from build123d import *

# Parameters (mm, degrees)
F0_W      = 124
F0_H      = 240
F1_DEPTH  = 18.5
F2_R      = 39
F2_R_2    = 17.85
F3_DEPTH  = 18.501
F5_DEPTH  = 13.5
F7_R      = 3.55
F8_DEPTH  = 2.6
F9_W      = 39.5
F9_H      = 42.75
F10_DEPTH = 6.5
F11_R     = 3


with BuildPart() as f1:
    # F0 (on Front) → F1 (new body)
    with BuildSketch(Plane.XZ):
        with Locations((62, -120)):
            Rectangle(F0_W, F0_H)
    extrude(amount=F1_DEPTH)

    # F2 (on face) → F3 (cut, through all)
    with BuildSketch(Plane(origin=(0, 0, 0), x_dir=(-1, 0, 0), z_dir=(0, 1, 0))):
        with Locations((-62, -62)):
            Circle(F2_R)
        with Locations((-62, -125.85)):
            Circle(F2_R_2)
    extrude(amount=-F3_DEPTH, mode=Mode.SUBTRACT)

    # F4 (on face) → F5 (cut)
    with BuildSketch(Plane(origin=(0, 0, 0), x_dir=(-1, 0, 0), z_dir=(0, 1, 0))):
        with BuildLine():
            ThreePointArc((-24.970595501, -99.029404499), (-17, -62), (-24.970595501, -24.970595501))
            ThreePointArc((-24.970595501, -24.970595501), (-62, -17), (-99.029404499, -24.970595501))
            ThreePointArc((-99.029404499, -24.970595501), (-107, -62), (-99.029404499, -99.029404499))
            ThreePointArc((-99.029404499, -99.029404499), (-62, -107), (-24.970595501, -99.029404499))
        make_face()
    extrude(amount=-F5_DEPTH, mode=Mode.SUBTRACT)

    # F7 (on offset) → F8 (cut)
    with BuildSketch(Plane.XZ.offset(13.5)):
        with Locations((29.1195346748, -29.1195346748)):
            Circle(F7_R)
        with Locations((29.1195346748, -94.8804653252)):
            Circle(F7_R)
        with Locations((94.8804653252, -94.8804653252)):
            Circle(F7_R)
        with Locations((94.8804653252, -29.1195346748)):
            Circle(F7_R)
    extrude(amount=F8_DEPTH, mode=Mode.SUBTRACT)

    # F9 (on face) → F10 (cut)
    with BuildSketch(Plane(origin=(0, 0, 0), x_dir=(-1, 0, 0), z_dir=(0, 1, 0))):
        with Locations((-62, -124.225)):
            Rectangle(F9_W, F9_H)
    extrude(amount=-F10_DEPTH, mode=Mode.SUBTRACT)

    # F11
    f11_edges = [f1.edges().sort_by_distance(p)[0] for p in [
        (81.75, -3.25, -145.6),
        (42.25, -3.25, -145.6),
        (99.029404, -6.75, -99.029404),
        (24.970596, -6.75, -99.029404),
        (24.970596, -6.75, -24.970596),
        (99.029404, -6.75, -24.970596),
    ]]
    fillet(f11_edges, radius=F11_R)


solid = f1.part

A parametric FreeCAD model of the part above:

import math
import FreeCAD as App
import Part
import Sketcher
Q = App.Units.Quantity


def edges_at(feature, points):
    """Names of the edges that pass closest to the given points."""
    edges = feature.Shape.Edges
    near = lambda p: min(range(len(edges)), key=lambda i: edges[i].distToShape(Part.Vertex(*p))[0])
    return sorted({f"Edge{near(p) + 1}" for p in points})


def add_polygon(sketch, points):
    """Adds a closed chain of lines whose ends are joined by coincident constraints."""
    first, n = sketch.GeometryCount, len(points)
    for a, b in zip(points, points[1:] + points[:1]):
        sketch.addGeometry(Part.LineSegment(App.Vector(*a, 0), App.Vector(*b, 0)), False)
    for i in range(n):
        sketch.addConstraint(Sketcher.Constraint("Coincident", first + i, 2, first + (i + 1) % n, 1))

doc = App.newDocument("Part")
body = doc.addObject("PartDesign::Body", "Body")

# Sketch on XZ plane
sketch1 = body.newObject("Sketcher::SketchObject", "Sketch")
sketch1.AttachmentSupport = (doc.getObject("XZ_Plane"), [""])
sketch1.MapMode = "FlatFace"
add_polygon(sketch1, [(0, 0), (0, -240), (124, -240), (124, 0)])  # lines 0-3
sketch1.addConstraint(Sketcher.Constraint("Vertical", 0))
sketch1.addConstraint(Sketcher.Constraint("Horizontal", 1))
sketch1.addConstraint(Sketcher.Constraint("Vertical", 2))
sketch1.addConstraint(Sketcher.Constraint("Horizontal", 3))
sketch1.addConstraint(Sketcher.Constraint("Coincident", 3, 2, -1, 1))
sketch1.addConstraint(Sketcher.Constraint("DistanceX", 1, 1, 1, 2, Q("124 mm")))
sketch1.addConstraint(Sketcher.Constraint("DistanceY", 0, 2, 0, 1, Q("240 mm")))
pad1 = body.newObject("PartDesign::Pad", "Pad")
pad1.Profile = sketch1
pad1.Length = 18.5

# Sketch on XZ plane
sketch2 = body.newObject("Sketcher::SketchObject", "Sketch001")
sketch2.AttachmentSupport = (doc.getObject("XZ_Plane"), [""])
sketch2.MapMode = "FlatFace"
sketch2.addGeometry(Part.Circle(App.Vector(62, -62, 0), App.Vector(0, 0, 1), 39), False)
sketch2.addGeometry(Part.Circle(App.Vector(62, -125.85, 0), App.Vector(0, 0, 1), 17.85), False)
sketch2.addConstraint(Sketcher.Constraint("Vertical", 0, 3, 1, 3))
sketch2.addConstraint(Sketcher.Constraint("Diameter", 0, Q("78 mm")))
sketch2.addConstraint(Sketcher.Constraint("Diameter", 1, Q("35.7 mm")))
sketch2.addConstraint(Sketcher.Constraint("DistanceX", -1, 1, 0, 3, Q("62 mm")))
sketch2.addConstraint(Sketcher.Constraint("DistanceY", 0, 3, -1, 1, Q("62 mm")))
sketch2.addConstraint(Sketcher.Constraint("DistanceY", 1, 3, -1, 1, Q("125.85 mm")))
pocket1 = body.newObject("PartDesign::Pocket", "Pocket")
pocket1.Profile = sketch2
pocket1.Type = "ThroughAll"
pocket1.Reversed = True

# Sketch on XZ plane
sketch3 = body.newObject("Sketcher::SketchObject", "Sketch002")
sketch3.AttachmentSupport = (doc.getObject("XZ_Plane"), [""])
sketch3.MapMode = "FlatFace"
sketch3.addGeometry(Part.ArcOfCircle(Part.Circle(App.Vector(107, -62, 0), App.Vector(0, 0, 1), 90), math.radians(155.704811), math.radians(204.295189)), False)
sketch3.addGeometry(Part.ArcOfCircle(Part.Circle(App.Vector(62, -107, 0), App.Vector(0, 0, 1), 90), math.radians(65.704811), math.radians(114.295189)), False)
sketch3.addGeometry(Part.ArcOfCircle(Part.Circle(App.Vector(17, -62, 0), App.Vector(0, 0, 1), 90), math.radians(-24.295189), math.radians(24.295189)), False)
sketch3.addGeometry(Part.ArcOfCircle(Part.Circle(App.Vector(62, -17, 0), App.Vector(0, 0, 1), 90), math.radians(-114.295189), math.radians(-65.704811)), False)
sketch3.addConstraint(Sketcher.Constraint("Coincident", 0, 1, 1, 2))
sketch3.addConstraint(Sketcher.Constraint("Coincident", 1, 1, 2, 2))
sketch3.addConstraint(Sketcher.Constraint("Coincident", 2, 1, 3, 2))
sketch3.addConstraint(Sketcher.Constraint("Coincident", 3, 1, 0, 2))
sketch3.addConstraint(Sketcher.Constraint("Equal", 0, 1))
sketch3.addConstraint(Sketcher.Constraint("Equal", 1, 2))
sketch3.addConstraint(Sketcher.Constraint("Equal", 2, 3))
sketch3.addConstraint(Sketcher.Constraint("Horizontal", 0, 3, 2, 3))
sketch3.addConstraint(Sketcher.Constraint("Horizontal", 0, 1, 1, 1))
sketch3.addConstraint(Sketcher.Constraint("Horizontal", 2, 1, 3, 1))
sketch3.addConstraint(Sketcher.Constraint("Vertical", 1, 1, 2, 1))
sketch3.addConstraint(Sketcher.Constraint("Radius", 0, Q("90 mm")))
sketch3.addConstraint(Sketcher.Constraint("DistanceX", -1, 1, 0, 3, Q("107 mm")))
sketch3.addConstraint(Sketcher.Constraint("DistanceY", 0, 3, -1, 1, Q("62 mm")))
sketch3.addConstraint(Sketcher.Constraint("DistanceX", -1, 1, 1, 3, Q("62 mm")))
sketch3.addConstraint(Sketcher.Constraint("DistanceY", 1, 3, -1, 1, Q("107 mm")))
pocket2 = body.newObject("PartDesign::Pocket", "Pocket001")
pocket2.Profile = sketch3
pocket2.Length = 13.5
pocket2.Reversed = True

# Sketch on XZ plane
sketch4 = body.newObject("Sketcher::SketchObject", "Sketch003")
sketch4.AttachmentSupport = (doc.getObject("XZ_Plane"), [""])
sketch4.MapMode = "FlatFace"
sketch4.AttachmentOffset = App.Placement(App.Vector(0, 0, 13.5), App.Rotation())
sketch4.addGeometry(Part.Circle(App.Vector(29.119535, -29.119535, 0), App.Vector(0, 0, 1), 3.55), False)
sketch4.addGeometry(Part.Circle(App.Vector(29.119535, -94.880465, 0), App.Vector(0, 0, 1), 3.55), False)
sketch4.addGeometry(Part.Circle(App.Vector(94.880465, -94.880465, 0), App.Vector(0, 0, 1), 3.55), False)
sketch4.addGeometry(Part.Circle(App.Vector(94.880465, -29.119535, 0), App.Vector(0, 0, 1), 3.55), False)
sketch4.addConstraint(Sketcher.Constraint("Equal", 0, 1))
sketch4.addConstraint(Sketcher.Constraint("Equal", 1, 2))
sketch4.addConstraint(Sketcher.Constraint("Equal", 2, 3))
sketch4.addConstraint(Sketcher.Constraint("Horizontal", 1, 3, 2, 3))
sketch4.addConstraint(Sketcher.Constraint("Horizontal", 0, 3, 3, 3))
sketch4.addConstraint(Sketcher.Constraint("Vertical", 0, 3, 1, 3))
sketch4.addConstraint(Sketcher.Constraint("Vertical", 2, 3, 3, 3))
sketch4.addConstraint(Sketcher.Constraint("Diameter", 0, Q("7.1 mm")))
sketch4.addConstraint(Sketcher.Constraint("DistanceY", 1, 3, 0, 3, Q("65.760931 mm")))
sketch4.addConstraint(Sketcher.Constraint("DistanceX", 1, 3, 2, 3, Q("65.760931 mm")))
sketch4.addConstraint(Sketcher.Constraint("DistanceX", -1, 1, 0, 3, Q("29.119535 mm")))
sketch4.addConstraint(Sketcher.Constraint("DistanceY", 0, 3, -1, 1, Q("29.119535 mm")))
pocket3 = body.newObject("PartDesign::Pocket", "Pocket002")
pocket3.Profile = sketch4
pocket3.Length = 2.6
pocket3.Reversed = True

# Sketch on XZ plane
sketch5 = body.newObject("Sketcher::SketchObject", "Sketch004")
sketch5.AttachmentSupport = (doc.getObject("XZ_Plane"), [""])
sketch5.MapMode = "FlatFace"
add_polygon(sketch5, [(81.75, -102.85), (81.75, -145.6), (42.25, -145.6), (42.25, -102.85)])  # lines 0-3
sketch5.addConstraint(Sketcher.Constraint("Vertical", 0))
sketch5.addConstraint(Sketcher.Constraint("Horizontal", 1))
sketch5.addConstraint(Sketcher.Constraint("Vertical", 2))
sketch5.addConstraint(Sketcher.Constraint("Horizontal", 3))
sketch5.addConstraint(Sketcher.Constraint("DistanceX", 1, 2, 1, 1, Q("39.5 mm")))
sketch5.addConstraint(Sketcher.Constraint("DistanceY", 0, 2, 0, 1, Q("42.75 mm")))
sketch5.addConstraint(Sketcher.Constraint("DistanceY", 0, 2, -1, 1, Q("145.6 mm")))
sketch5.addConstraint(Sketcher.Constraint("DistanceX", -1, 1, 0, 2, Q("81.75 mm")))
pocket4 = body.newObject("PartDesign::Pocket", "Pocket003")
pocket4.Profile = sketch5
pocket4.Length = 6.5
pocket4.Reversed = True
doc.recompute()

fillet = body.newObject("PartDesign::Fillet", "Fillet")
fillet.Base = (pocket4, edges_at(pocket4, [
    (81.75, -3.25, -145.6),
    (42.25, -3.25, -145.6),
    (99.029, -6.75, -99.029),
    (24.971, -6.75, -99.029),
    (24.971, -6.75, -24.971),
    (99.029, -6.75, -24.971),
]))
fillet.Radius = 3

doc.recompute()
